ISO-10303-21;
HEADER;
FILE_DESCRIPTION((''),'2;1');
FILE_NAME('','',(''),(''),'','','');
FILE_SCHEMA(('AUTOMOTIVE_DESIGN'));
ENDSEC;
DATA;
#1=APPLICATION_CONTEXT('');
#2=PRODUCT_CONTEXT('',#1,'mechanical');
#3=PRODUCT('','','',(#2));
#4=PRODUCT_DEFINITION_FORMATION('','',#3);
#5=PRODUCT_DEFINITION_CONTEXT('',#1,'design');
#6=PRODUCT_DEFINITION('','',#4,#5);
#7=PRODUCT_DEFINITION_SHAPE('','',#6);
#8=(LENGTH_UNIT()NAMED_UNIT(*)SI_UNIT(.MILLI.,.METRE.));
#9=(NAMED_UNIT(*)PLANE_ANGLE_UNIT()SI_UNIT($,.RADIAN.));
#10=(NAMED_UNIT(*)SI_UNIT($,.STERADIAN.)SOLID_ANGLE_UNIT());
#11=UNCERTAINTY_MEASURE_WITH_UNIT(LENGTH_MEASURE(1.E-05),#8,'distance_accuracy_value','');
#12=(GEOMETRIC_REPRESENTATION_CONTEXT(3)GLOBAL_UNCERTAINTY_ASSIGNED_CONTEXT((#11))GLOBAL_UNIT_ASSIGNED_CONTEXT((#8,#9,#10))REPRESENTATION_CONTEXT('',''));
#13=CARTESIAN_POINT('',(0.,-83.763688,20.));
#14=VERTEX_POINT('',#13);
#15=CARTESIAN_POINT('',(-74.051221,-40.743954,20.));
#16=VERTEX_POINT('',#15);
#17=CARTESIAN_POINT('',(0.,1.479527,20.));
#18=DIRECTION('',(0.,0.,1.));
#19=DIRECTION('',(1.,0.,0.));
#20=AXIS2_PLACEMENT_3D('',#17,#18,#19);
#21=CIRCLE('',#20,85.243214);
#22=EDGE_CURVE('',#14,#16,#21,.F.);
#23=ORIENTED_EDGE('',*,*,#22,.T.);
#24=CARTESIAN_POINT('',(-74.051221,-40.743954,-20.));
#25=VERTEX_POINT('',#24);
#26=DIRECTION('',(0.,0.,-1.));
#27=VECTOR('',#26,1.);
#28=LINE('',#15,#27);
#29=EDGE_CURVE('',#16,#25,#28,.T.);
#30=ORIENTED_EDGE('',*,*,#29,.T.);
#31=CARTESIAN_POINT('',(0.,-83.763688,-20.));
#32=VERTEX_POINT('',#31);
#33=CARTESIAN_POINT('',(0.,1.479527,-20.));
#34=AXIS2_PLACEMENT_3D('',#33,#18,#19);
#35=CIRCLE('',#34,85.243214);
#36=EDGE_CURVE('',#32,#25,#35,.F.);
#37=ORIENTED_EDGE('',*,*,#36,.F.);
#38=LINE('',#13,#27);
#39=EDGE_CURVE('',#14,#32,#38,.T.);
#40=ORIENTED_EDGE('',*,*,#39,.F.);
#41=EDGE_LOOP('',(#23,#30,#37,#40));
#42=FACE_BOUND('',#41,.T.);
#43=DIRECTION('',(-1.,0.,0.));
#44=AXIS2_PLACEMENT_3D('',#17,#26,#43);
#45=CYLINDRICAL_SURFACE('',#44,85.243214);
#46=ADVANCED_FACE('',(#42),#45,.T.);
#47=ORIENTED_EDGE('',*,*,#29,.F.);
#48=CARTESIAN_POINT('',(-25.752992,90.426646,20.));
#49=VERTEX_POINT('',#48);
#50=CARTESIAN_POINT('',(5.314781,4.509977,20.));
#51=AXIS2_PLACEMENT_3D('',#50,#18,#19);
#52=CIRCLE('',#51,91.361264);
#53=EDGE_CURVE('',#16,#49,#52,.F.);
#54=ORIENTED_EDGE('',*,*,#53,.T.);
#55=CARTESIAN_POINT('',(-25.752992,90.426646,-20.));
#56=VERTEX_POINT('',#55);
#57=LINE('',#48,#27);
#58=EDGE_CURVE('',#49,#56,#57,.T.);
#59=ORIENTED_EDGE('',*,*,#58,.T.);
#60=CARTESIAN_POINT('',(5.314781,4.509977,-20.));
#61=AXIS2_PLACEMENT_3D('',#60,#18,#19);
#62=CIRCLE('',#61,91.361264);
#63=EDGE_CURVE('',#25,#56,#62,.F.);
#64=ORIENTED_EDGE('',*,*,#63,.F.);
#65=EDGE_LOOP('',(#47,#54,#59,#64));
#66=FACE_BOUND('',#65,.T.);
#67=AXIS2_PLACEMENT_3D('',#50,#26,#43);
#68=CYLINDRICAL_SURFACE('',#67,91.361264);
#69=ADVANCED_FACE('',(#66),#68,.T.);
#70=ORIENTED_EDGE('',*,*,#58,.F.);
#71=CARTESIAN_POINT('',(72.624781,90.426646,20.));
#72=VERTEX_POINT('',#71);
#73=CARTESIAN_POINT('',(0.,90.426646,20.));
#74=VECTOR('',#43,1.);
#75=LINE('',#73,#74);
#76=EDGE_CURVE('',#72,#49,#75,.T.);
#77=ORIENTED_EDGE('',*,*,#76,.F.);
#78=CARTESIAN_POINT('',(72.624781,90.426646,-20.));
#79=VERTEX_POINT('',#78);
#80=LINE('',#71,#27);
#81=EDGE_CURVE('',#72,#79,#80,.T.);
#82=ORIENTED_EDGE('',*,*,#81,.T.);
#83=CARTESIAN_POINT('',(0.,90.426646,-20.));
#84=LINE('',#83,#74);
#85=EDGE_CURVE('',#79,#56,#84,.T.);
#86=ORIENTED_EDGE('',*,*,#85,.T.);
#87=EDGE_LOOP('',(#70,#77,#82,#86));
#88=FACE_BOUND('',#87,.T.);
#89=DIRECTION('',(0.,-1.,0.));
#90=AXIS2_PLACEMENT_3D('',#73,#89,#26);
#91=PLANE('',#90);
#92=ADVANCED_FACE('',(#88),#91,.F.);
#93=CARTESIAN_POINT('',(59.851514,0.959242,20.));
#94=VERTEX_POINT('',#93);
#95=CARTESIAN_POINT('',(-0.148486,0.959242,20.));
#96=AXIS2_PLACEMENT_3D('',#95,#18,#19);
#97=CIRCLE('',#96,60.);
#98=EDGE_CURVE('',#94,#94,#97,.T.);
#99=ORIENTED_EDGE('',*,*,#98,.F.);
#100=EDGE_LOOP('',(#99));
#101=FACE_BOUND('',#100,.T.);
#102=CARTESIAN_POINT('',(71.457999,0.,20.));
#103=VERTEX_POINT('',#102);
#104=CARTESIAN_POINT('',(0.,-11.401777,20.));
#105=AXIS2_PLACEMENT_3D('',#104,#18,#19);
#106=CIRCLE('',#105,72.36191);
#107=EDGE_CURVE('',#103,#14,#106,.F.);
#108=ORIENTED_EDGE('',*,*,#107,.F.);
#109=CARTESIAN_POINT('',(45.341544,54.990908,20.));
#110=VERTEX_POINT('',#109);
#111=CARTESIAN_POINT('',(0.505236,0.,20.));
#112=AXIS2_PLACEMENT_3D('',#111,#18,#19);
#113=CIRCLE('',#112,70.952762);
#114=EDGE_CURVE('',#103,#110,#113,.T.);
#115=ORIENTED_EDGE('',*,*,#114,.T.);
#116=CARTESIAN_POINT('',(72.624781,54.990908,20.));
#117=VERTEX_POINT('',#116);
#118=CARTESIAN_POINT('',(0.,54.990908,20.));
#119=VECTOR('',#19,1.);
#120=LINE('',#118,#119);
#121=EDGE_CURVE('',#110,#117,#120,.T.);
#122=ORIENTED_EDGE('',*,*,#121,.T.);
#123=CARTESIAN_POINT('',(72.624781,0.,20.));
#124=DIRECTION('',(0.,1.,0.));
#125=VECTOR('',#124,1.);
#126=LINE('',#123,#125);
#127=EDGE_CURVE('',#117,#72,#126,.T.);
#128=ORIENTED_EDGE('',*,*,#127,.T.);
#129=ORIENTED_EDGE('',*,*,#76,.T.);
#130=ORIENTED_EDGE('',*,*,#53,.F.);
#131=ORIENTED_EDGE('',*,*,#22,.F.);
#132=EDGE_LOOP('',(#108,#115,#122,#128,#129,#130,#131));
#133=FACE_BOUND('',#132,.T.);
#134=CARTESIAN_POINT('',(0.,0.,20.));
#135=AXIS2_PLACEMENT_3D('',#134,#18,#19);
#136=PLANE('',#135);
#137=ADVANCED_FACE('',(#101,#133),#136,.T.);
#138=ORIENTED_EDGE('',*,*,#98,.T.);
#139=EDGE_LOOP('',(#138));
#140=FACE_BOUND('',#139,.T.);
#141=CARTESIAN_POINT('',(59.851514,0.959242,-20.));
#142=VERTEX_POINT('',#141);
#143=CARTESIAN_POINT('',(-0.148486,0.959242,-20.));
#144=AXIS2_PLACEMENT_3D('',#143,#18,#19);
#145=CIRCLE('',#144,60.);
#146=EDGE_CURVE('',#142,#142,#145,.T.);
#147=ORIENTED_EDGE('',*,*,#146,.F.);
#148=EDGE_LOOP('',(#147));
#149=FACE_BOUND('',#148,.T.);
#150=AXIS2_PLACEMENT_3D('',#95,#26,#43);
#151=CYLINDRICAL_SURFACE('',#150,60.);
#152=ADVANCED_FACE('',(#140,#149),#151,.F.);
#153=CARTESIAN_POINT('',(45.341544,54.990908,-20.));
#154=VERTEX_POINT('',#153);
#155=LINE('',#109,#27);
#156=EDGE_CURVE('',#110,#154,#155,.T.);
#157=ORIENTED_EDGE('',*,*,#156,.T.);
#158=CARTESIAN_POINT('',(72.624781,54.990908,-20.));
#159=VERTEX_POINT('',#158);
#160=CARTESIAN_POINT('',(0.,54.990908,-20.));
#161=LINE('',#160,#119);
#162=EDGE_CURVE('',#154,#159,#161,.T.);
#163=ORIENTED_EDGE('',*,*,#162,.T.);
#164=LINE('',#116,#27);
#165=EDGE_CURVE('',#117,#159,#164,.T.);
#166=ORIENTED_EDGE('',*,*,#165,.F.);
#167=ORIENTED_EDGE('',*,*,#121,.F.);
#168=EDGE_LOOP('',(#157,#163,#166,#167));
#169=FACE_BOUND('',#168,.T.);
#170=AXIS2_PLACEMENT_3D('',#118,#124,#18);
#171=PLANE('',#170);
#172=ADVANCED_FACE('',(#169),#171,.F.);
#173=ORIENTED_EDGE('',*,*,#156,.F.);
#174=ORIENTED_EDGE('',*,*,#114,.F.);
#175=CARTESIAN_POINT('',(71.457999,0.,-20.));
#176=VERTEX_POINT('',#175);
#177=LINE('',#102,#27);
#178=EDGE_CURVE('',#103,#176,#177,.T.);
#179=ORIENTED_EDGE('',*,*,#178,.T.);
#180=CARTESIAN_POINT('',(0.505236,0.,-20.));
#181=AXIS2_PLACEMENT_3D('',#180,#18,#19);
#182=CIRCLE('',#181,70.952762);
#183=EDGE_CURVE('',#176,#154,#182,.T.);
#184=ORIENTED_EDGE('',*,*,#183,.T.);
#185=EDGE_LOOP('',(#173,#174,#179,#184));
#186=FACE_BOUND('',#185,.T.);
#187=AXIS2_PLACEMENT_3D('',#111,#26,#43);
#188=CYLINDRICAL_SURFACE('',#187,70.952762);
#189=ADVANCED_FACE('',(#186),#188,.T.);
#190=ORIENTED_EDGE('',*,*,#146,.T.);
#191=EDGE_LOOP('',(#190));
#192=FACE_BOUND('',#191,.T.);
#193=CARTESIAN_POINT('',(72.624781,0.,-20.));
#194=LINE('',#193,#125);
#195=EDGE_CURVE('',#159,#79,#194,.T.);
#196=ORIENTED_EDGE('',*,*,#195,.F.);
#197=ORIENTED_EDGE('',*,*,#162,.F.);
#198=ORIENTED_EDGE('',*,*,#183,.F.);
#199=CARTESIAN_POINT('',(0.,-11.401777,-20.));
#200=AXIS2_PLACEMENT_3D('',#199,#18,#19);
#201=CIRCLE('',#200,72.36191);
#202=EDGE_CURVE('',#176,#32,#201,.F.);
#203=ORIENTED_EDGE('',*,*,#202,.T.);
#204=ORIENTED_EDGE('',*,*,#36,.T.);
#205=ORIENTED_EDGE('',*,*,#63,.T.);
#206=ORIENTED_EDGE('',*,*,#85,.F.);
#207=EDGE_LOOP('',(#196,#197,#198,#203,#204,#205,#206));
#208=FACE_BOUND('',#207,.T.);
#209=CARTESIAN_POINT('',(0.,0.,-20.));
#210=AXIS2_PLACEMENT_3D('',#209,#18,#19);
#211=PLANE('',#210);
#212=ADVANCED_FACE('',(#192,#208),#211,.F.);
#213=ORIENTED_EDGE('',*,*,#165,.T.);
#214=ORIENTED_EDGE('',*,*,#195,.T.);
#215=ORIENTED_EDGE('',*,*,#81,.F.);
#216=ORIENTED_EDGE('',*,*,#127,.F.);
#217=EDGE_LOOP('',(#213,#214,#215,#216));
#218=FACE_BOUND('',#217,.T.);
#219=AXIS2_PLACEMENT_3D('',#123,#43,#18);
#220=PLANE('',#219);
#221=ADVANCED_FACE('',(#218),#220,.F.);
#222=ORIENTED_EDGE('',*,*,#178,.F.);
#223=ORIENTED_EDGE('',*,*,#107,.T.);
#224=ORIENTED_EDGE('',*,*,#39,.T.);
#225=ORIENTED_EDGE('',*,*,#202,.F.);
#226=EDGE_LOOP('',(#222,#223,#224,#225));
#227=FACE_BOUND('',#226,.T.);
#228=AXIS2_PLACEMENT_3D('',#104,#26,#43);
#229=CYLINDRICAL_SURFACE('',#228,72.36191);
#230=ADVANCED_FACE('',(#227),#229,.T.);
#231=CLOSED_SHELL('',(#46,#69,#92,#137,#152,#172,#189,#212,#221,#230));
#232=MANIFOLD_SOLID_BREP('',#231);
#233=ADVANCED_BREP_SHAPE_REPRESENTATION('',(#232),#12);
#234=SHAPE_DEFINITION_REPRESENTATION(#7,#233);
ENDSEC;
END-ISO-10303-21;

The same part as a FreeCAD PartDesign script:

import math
import FreeCAD as App
import Part
import Sketcher

V = App.Vector
Q = App.Units.Quantity

doc = App.newDocument("Part")
params = doc.addObject("Spreadsheet::Sheet", "Params")
for row, (alias, value) in enumerate([
    ("sketch1_diameter", "120 mm"),
    ("pad1_length", "40 mm"),
], start=1):
    params.set(f"A{row}", alias)
    params.set(f"B{row}", "=" + value)
    params.setAlias(f"B{row}", alias)

body = doc.addObject("PartDesign::Body", "Body")

# Sketch on XY plane
sketch1 = body.newObject("Sketcher::SketchObject", "Sketch")
sketch1.AttachmentSupport = (doc.getObject("XY_Plane"), [""])
sketch1.MapMode = "FlatFace"
sketch1.addGeometry([
    Part.ArcOfCircle(Part.Circle(V(5.314781, 4.509977, 0), V(0, 0, 1), 91.361264), math.radians(109.880171), math.radians(209.691482)),  # 0
    Part.ArcOfCircle(Part.Circle(V(0, 1.479527, 0), V(0, 0, 1), 85.243214), math.radians(-150.308518), math.radians(-90)),  # 1
    Part.ArcOfCircle(Part.Circle(V(0, -11.401777, 0), V(0, 0, 1), 72.36191), math.radians(-90), math.radians(9.065647)),  # 2
    Part.ArcOfCircle(Part.Circle(V(0.505236, 0, 0), V(0, 0, 1), 70.952762), math.radians(0), math.radians(50.80825)),  # 3
    Part.LineSegment(V(45.341544, 54.990908, 0), V(72.624781, 54.990908, 0)),  # 4
    Part.LineSegment(V(72.624781, 54.990908, 0), V(72.624781, 90.426646, 0)),  # 5
    Part.LineSegment(V(72.624781, 90.426646, 0), V(-25.752992, 90.426646, 0)),  # 6
    Part.Circle(V(-0.148486, 0.959242, 0), V(0, 0, 1), 60),  # 7
], False)
sketch1.addConstraint([
    Sketcher.Constraint("Tangent", 0, 2, 1, 1),
    Sketcher.Constraint("Tangent", 1, 2, 2, 1),
    Sketcher.Constraint("Coincident", 2, 2, 3, 1),
    Sketcher.Constraint("Coincident", 3, 2, 4, 1),
    Sketcher.Constraint("Coincident", 4, 2, 5, 1),
    Sketcher.Constraint("Coincident", 5, 2, 6, 1),
    Sketcher.Constraint("Coincident", 6, 2, 0, 1),
    Sketcher.Constraint("Horizontal", 4),
    Sketcher.Constraint("Vertical", 5),
    Sketcher.Constraint("Horizontal", 6),
    Sketcher.Constraint("PointOnObject", 1, 3, -2),
    Sketcher.Constraint("PointOnObject", 2, 3, -2),
    Sketcher.Constraint("PointOnObject", 3, 3, -1),
    Sketcher.Constraint("PointOnObject", 2, 2, -1),
    Sketcher.Constraint("Diameter", 7, Q("120 mm")),
    Sketcher.Constraint("Radius", 2, Q("72.36191 mm")),
    Sketcher.Constraint("DistanceX", 0, 3, 4, 2, Q("67.31 mm")),
    Sketcher.Constraint("DistanceX", -1, 1, 2, 2, Q("71.457999 mm")),
    Sketcher.Constraint("Radius", 0, Q("91.361264 mm")),
    Sketcher.Constraint("Radius", 1, Q("85.243214 mm")),
    Sketcher.Constraint("Radius", 3, Q("70.952762 mm")),
    Sketcher.Constraint("DistanceX", 0, 2, 0, 3, Q("79.366002 mm")),
    Sketcher.Constraint("DistanceX", 4, 1, 4, 2, Q("27.283237 mm")),
    Sketcher.Constraint("DistanceX", 6, 2, 6, 1, Q("98.377773 mm")),
    Sketcher.Constraint("DistanceY", -1, 1, 7, 3, Q("0.959242 mm")),
    Sketcher.Constraint("DistanceX", 7, 3, 3, 3, Q("0.653722 mm")),
])
sketch1.setExpression("Constraints[14]", "Params.sketch1_diameter")
pad1 = body.newObject("PartDesign::Pad", "Pad")
pad1.Profile = sketch1
pad1.setExpression("Length", "Params.pad1_length")
pad1.Midplane = True

doc.recompute()
